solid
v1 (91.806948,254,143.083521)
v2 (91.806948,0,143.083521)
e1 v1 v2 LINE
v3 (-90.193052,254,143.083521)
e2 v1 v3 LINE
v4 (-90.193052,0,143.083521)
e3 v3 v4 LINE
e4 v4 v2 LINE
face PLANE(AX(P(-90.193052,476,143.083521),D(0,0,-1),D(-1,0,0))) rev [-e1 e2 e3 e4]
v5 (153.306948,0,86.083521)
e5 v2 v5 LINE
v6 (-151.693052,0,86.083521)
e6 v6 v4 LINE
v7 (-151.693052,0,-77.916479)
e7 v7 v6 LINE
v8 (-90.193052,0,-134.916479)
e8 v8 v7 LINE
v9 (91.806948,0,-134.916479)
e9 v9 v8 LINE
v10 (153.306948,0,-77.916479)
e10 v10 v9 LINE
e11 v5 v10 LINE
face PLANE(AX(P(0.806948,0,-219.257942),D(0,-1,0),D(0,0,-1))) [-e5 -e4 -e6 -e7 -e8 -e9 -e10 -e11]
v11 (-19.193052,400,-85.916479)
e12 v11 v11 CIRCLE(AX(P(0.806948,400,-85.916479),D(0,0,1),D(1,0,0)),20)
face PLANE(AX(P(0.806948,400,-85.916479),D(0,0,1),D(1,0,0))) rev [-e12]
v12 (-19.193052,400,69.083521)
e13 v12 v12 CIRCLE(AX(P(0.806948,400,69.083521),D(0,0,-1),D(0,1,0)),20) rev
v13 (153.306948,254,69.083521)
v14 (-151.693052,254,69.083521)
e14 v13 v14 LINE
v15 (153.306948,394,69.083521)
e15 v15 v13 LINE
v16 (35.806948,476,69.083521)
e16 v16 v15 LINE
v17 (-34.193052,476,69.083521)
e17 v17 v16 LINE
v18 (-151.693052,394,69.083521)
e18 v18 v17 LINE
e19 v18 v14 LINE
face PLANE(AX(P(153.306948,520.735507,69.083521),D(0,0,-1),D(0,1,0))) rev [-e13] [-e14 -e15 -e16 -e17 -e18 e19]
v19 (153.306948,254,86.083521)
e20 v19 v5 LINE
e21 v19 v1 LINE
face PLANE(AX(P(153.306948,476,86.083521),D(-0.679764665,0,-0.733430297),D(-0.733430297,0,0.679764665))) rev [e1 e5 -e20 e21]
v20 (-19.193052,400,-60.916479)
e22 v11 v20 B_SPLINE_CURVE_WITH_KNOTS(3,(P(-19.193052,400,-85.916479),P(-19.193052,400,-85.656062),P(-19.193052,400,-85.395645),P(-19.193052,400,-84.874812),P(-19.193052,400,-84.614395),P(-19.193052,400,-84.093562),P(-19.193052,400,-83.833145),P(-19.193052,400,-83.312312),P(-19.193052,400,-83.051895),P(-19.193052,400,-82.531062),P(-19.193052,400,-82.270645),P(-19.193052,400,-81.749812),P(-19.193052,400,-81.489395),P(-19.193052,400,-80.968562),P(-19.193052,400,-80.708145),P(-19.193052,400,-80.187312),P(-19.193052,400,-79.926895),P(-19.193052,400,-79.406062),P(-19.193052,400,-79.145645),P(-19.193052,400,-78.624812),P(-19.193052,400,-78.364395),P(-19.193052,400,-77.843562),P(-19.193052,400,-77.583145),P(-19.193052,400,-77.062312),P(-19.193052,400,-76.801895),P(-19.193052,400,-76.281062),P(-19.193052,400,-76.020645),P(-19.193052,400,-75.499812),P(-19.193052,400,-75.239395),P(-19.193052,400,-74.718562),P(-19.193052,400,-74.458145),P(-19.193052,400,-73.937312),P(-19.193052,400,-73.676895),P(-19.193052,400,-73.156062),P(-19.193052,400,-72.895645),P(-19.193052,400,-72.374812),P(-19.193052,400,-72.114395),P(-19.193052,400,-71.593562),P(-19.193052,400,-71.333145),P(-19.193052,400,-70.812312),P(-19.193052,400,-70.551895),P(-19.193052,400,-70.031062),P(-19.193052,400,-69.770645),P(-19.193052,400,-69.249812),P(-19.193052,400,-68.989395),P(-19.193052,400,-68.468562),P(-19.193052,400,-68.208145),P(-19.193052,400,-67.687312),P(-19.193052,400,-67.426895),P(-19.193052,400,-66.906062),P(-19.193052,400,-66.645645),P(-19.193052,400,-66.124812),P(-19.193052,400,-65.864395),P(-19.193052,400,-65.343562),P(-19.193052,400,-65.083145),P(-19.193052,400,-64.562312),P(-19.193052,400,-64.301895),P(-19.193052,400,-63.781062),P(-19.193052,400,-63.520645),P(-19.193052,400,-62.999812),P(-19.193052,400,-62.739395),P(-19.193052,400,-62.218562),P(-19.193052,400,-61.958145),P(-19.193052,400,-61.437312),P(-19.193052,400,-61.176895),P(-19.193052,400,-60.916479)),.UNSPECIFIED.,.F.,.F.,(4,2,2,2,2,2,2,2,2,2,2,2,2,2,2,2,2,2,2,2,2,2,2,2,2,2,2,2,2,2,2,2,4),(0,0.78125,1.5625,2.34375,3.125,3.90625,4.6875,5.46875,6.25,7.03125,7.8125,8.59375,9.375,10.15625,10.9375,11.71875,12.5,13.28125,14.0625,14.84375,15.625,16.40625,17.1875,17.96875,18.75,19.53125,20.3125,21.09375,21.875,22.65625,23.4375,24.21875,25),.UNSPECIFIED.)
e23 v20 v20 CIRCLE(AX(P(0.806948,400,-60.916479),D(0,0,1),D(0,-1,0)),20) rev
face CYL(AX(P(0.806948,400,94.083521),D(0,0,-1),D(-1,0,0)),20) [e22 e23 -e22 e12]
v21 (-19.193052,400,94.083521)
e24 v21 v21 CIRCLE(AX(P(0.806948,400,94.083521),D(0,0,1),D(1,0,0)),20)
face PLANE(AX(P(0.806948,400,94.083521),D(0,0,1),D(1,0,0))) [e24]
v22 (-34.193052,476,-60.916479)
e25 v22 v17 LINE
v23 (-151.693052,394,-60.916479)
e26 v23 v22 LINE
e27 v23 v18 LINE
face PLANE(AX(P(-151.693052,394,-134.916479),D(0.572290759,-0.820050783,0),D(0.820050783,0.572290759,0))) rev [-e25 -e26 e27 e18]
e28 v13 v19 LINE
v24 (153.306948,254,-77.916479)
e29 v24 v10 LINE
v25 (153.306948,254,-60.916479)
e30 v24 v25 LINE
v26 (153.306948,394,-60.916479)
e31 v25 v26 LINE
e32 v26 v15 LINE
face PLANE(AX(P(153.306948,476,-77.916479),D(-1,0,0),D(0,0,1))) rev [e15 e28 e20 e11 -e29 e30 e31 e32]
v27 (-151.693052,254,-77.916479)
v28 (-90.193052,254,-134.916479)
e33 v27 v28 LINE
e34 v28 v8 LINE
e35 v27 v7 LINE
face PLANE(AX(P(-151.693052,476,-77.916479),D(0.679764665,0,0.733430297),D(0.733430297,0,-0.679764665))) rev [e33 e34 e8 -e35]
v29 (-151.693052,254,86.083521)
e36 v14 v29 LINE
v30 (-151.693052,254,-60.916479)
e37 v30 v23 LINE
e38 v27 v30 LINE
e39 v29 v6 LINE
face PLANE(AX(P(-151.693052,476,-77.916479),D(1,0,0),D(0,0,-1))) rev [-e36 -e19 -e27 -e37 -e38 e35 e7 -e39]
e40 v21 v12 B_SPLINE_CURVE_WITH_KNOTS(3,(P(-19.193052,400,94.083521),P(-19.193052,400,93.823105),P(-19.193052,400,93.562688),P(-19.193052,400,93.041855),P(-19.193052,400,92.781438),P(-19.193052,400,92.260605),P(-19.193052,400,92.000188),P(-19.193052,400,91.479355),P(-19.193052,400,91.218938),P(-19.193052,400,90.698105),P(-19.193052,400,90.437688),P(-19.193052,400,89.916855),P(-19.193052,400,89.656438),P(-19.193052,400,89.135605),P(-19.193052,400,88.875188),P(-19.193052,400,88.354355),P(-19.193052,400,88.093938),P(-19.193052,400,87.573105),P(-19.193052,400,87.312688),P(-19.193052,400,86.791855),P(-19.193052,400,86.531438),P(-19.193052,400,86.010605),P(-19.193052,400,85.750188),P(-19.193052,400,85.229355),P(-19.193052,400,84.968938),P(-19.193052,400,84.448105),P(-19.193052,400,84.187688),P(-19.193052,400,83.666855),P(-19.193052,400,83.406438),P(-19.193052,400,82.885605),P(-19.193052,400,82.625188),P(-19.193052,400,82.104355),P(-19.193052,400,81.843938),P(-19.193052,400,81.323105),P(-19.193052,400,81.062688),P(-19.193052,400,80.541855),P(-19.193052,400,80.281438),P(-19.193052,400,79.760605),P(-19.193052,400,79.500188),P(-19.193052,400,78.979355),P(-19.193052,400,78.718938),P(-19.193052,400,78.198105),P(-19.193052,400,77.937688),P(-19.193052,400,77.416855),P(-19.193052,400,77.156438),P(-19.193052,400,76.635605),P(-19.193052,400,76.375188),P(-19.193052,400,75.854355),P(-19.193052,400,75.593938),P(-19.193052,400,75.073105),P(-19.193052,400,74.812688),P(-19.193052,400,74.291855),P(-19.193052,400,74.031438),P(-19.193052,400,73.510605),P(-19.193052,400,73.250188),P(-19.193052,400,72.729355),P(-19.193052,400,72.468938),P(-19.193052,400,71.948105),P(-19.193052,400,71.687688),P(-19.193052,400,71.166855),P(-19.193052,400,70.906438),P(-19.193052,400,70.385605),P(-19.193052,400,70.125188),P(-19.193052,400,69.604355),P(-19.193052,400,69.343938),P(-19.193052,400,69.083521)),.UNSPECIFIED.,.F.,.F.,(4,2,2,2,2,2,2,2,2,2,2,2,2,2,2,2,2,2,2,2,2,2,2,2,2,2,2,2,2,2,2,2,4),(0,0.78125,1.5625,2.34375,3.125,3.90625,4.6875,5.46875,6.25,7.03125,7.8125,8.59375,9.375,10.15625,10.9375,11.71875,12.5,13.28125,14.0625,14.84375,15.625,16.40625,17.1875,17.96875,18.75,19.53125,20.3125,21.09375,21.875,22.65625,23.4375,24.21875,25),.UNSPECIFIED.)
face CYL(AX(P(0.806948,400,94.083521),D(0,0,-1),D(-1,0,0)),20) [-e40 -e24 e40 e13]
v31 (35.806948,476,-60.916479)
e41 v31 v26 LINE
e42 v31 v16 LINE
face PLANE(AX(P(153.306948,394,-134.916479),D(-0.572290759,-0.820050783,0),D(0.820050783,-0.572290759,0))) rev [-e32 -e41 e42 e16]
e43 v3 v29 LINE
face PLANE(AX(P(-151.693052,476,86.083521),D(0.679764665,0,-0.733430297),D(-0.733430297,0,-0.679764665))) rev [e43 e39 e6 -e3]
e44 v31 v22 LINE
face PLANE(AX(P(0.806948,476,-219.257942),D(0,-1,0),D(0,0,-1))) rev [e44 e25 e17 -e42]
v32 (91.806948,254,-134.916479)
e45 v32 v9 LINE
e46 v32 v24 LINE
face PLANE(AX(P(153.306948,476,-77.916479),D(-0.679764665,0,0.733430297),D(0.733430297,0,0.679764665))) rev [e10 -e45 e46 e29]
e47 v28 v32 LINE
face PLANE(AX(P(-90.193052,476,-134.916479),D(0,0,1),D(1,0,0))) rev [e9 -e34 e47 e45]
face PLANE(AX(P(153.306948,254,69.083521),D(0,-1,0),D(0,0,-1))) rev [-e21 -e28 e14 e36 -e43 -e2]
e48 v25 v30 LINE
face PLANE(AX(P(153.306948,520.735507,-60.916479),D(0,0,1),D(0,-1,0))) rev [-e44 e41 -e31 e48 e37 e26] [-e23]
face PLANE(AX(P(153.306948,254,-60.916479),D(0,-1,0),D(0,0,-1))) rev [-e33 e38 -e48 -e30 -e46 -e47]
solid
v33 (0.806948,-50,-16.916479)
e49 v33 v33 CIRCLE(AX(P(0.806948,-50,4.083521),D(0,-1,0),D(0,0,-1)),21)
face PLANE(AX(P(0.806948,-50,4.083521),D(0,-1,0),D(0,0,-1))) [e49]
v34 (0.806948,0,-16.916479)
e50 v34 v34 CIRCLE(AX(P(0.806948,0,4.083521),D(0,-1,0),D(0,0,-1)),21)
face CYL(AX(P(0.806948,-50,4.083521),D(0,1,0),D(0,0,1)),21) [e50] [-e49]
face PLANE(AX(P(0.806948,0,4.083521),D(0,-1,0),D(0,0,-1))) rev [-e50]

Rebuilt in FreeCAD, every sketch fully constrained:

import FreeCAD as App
import Part
import Sketcher
Q = App.Units.Quantity

doc = App.newDocument("Part")
body = doc.addObject("PartDesign::Body", "Body")

# Sketch on XZ plane
sketch1 = body.newObject("Sketcher::SketchObject", "Sketch")
sketch1.AttachmentSupport = (doc.getObject("XZ_Plane"), [""])
sketch1.MapMode = "FlatFace"
sketch1.addGeometry(Part.LineSegment(App.Vector(-151.693052, -77.916479, 0), App.Vector(-151.693052, 86.083521, 0)), False)
sketch1.addGeometry(Part.LineSegment(App.Vector(-151.693052, 86.083521, 0), App.Vector(-90.193052, 143.083521, 0)), False)
sketch1.addGeometry(Part.LineSegment(App.Vector(-90.193052, 143.083521, 0), App.Vector(91.806948, 143.083521, 0)), False)
sketch1.addGeometry(Part.LineSegment(App.Vector(91.806948, 143.083521, 0), App.Vector(153.306948, 86.083521, 0)), False)
sketch1.addGeometry(Part.LineSegment(App.Vector(153.306948, 86.083521, 0), App.Vector(153.306948, -77.916479, 0)), False)
sketch1.addGeometry(Part.LineSegment(App.Vector(153.306948, -77.916479, 0), App.Vector(91.806948, -134.916479, 0)), False)
sketch1.addGeometry(Part.LineSegment(App.Vector(91.806948, -134.916479, 0), App.Vector(-90.193052, -134.916479, 0)), False)
sketch1.addGeometry(Part.LineSegment(App.Vector(-90.193052, -134.916479, 0), App.Vector(-151.693052, -77.916479, 0)), False)
sketch1.addConstraint(Sketcher.Constraint("Coincident", 0, 2, 1, 1))
sketch1.addConstraint(Sketcher.Constraint("Coincident", 1, 2, 2, 1))
sketch1.addConstraint(Sketcher.Constraint("Coincident", 2, 2, 3, 1))
sketch1.addConstraint(Sketcher.Constraint("Coincident", 3, 2, 4, 1))
sketch1.addConstraint(Sketcher.Constraint("Coincident", 4, 2, 5, 1))
sketch1.addConstraint(Sketcher.Constraint("Coincident", 5, 2, 6, 1))
sketch1.addConstraint(Sketcher.Constraint("Coincident", 6, 2, 7, 1))
sketch1.addConstraint(Sketcher.Constraint("Coincident", 7, 2, 0, 1))
sketch1.addConstraint(Sketcher.Constraint("Vertical", 0))
sketch1.addConstraint(Sketcher.Constraint("Horizontal", 2))
sketch1.addConstraint(Sketcher.Constraint("Vertical", 4))
sketch1.addConstraint(Sketcher.Constraint("Horizontal", 6))
sketch1.addConstraint(Sketcher.Constraint("Parallel", 1, 5))
sketch1.addConstraint(Sketcher.Constraint("Parallel", 3, 7))
sketch1.addConstraint(Sketcher.Constraint("Horizontal", 0, 2, 3, 2))
sketch1.addConstraint(Sketcher.Constraint("Horizontal", 4, 2, 7, 2))
sketch1.addConstraint(Sketcher.Constraint("Vertical", 2, 2, 5, 2))
sketch1.addConstraint(Sketcher.Constraint("Vertical", 1, 2, 6, 2))
sketch1.addConstraint(Sketcher.Constraint("DistanceX", 2, 1, 2, 2, Q("182 mm")))
sketch1.addConstraint(Sketcher.Constraint("DistanceY", 0, 1, 0, 2, Q("164 mm")))
sketch1.addConstraint(Sketcher.Constraint("DistanceY", 0, 2, 1, 2, Q("57 mm")))
sketch1.addConstraint(Sketcher.Constraint("DistanceX", 0, 2, 3, 2, Q("305 mm")))
sketch1.addConstraint(Sketcher.Constraint("DistanceX", 0, 2, -1, 1, Q("151.693052 mm")))
sketch1.addConstraint(Sketcher.Constraint("DistanceY", -1, 1, 0, 2, Q("86.083521 mm")))
pad1 = body.newObject("PartDesign::Pad", "Pad")
pad1.Profile = sketch1
pad1.Length = 476
pad1.Reversed = True

# Sketch on YZ plane
sketch2 = body.newObject("Sketcher::SketchObject", "Sketch001")
sketch2.AttachmentSupport = (doc.getObject("YZ_Plane"), [""])
sketch2.MapMode = "FlatFace"
sketch2.AttachmentOffset = App.Placement(App.Vector(0, 0, -151.693052), App.Rotation())
sketch2.addGeometry(Part.LineSegment(App.Vector(520.735507, 69.083521, 0), App.Vector(254, 69.083521, 0)), False)
sketch2.addGeometry(Part.LineSegment(App.Vector(254, 69.083521, 0), App.Vector(254, 248.653683, 0)), False)
sketch2.addGeometry(Part.LineSegment(App.Vector(254, 248.653683, 0), App.Vector(520.735507, 248.653683, 0)), False)
sketch2.addGeometry(Part.LineSegment(App.Vector(520.735507, 248.653683, 0), App.Vector(520.735507, 69.083521, 0)), False)
sketch2.addGeometry(Part.LineSegment(App.Vector(520.735507, -240.486641, 0), App.Vector(254, -240.486641, 0)), False)
sketch2.addGeometry(Part.LineSegment(App.Vector(254, -240.486641, 0), App.Vector(254, -60.916479, 0)), False)
sketch2.addGeometry(Part.LineSegment(App.Vector(254, -60.916479, 0), App.Vector(520.735507, -60.916479, 0)), False)
sketch2.addGeometry(Part.LineSegment(App.Vector(520.735507, -60.916479, 0), App.Vector(520.735507, -240.486641, 0)), False)
sketch2.addConstraint(Sketcher.Constraint("Coincident", 0, 2, 1, 1))
sketch2.addConstraint(Sketcher.Constraint("Coincident", 1, 2, 2, 1))
sketch2.addConstraint(Sketcher.Constraint("Coincident", 2, 2, 3, 1))
sketch2.addConstraint(Sketcher.Constraint("Coincident", 3, 2, 0, 1))
sketch2.addConstraint(Sketcher.Constraint("Coincident", 4, 2, 5, 1))
sketch2.addConstraint(Sketcher.Constraint("Coincident", 5, 2, 6, 1))
sketch2.addConstraint(Sketcher.Constraint("Coincident", 6, 2, 7, 1))
sketch2.addConstraint(Sketcher.Constraint("Coincident", 7, 2, 4, 1))
sketch2.addConstraint(Sketcher.Constraint("Horizontal", 0))
sketch2.addConstraint(Sketcher.Constraint("Vertical", 1))
sketch2.addConstraint(Sketcher.Constraint("Horizontal", 2))
sketch2.addConstraint(Sketcher.Constraint("Vertical", 3))
sketch2.addConstraint(Sketcher.Constraint("Horizontal", 4))
sketch2.addConstraint(Sketcher.Constraint("Vertical", 5))
sketch2.addConstraint(Sketcher.Constraint("Horizontal", 6))
sketch2.addConstraint(Sketcher.Constraint("Vertical", 7))
sketch2.addConstraint(Sketcher.Constraint("Vertical", 1, 2, 4, 2))
sketch2.addConstraint(Sketcher.Constraint("Vertical", 3, 2, 6, 2))
sketch2.addConstraint(Sketcher.Constraint("Equal", 3, 5))
sketch2.addConstraint(Sketcher.Constraint("DistanceX", -1, 1, 0, 2, Q("254 mm")))
sketch2.addConstraint(Sketcher.Constraint("DistanceY", 5, 2, 0, 2, Q("130 mm")))
sketch2.addConstraint(Sketcher.Constraint("DistanceY", 1, 1, 1, 2, Q("179.570162 mm")))
sketch2.addConstraint(Sketcher.Constraint("DistanceX", 0, 2, 0, 1, Q("266.735507 mm")))
sketch2.addConstraint(Sketcher.Constraint("DistanceY", -1, 1, 0, 2, Q("69.083521 mm")))
pocket1 = body.newObject("PartDesign::Pocket", "Pocket")
pocket1.Profile = sketch2
pocket1.Type = "ThroughAll"
pocket1.Reversed = True

# Sketch on XY plane
sketch3 = body.newObject("Sketcher::SketchObject", "Sketch002")
sketch3.AttachmentSupport = (doc.getObject("XY_Plane"), [""])
sketch3.MapMode = "FlatFace"
sketch3.AttachmentOffset = App.Placement(App.Vector(0, 0, 69.083521), App.Rotation())
sketch3.addGeometry(Part.LineSegment(App.Vector(-151.693052, 394, 0), App.Vector(-34.193052, 476, 0)), False)
sketch3.addGeometry(Part.LineSegment(App.Vector(-34.193052, 476, 0), App.Vector(-151.693052, 476, 0)), False)
sketch3.addGeometry(Part.LineSegment(App.Vector(-151.693052, 476, 0), App.Vector(-151.693052, 394, 0)), False)
sketch3.addGeometry(Part.LineSegment(App.Vector(153.306948, 476, 0), App.Vector(35.806948, 476, 0)), False)
sketch3.addGeometry(Part.LineSegment(App.Vector(35.806948, 476, 0), App.Vector(153.306948, 394, 0)), False)
sketch3.addGeometry(Part.LineSegment(App.Vector(153.306948, 394, 0), App.Vector(153.306948, 476, 0)), False)
sketch3.addConstraint(Sketcher.Constraint("Coincident", 0, 2, 1, 1))
sketch3.addConstraint(Sketcher.Constraint("Coincident", 1, 2, 2, 1))
sketch3.addConstraint(Sketcher.Constraint("Coincident", 2, 2, 0, 1))
sketch3.addConstraint(Sketcher.Constraint("Coincident", 3, 2, 4, 1))
sketch3.addConstraint(Sketcher.Constraint("Coincident", 4, 2, 5, 1))
sketch3.addConstraint(Sketcher.Constraint("Coincident", 5, 2, 3, 1))
sketch3.addConstraint(Sketcher.Constraint("Horizontal", 1))
sketch3.addConstraint(Sketcher.Constraint("Vertical", 2))
sketch3.addConstraint(Sketcher.Constraint("Horizontal", 3))
sketch3.addConstraint(Sketcher.Constraint("Vertical", 5))
sketch3.addConstraint(Sketcher.Constraint("Horizontal", 1, 2, 3, 2))
sketch3.addConstraint(Sketcher.Constraint("Horizontal", 2, 2, 4, 2))
sketch3.addConstraint(Sketcher.Constraint("Equal", 1, 3))
sketch3.addConstraint(Sketcher.Constraint("DistanceY", 2, 2, 2, 1, Q("82 mm")))
sketch3.addConstraint(Sketcher.Constraint("DistanceX", 1, 2, 1, 1, Q("117.5 mm")))
sketch3.addConstraint(Sketcher.Constraint("DistanceY", -1, 1, 0, 2, Q("476 mm")))
sketch3.addConstraint(Sketcher.Constraint("DistanceX", 0, 2, 3, 2, Q("70 mm")))
sketch3.addConstraint(Sketcher.Constraint("DistanceX", 0, 2, -1, 1, Q("34.193052 mm")))
pocket2 = body.newObject("PartDesign::Pocket", "Pocket001")
pocket2.Profile = sketch3
pocket2.Type = "ThroughAll"

# Sketch on XY plane
sketch4 = body.newObject("Sketcher::SketchObject", "Sketch003")
sketch4.AttachmentSupport = (doc.getObject("XY_Plane"), [""])
sketch4.MapMode = "FlatFace"
sketch4.AttachmentOffset = App.Placement(App.Vector(0, 0, 4.083521), App.Rotation())
sketch4.addGeometry(Part.Circle(App.Vector(0.806948, 400, 0), App.Vector(0, 0, 1), 20), False)
sketch4.addConstraint(Sketcher.Constraint("Diameter", 0, Q("40 mm")))
sketch4.addConstraint(Sketcher.Constraint("DistanceY", -1, 1, 0, 3, Q("400 mm")))
sketch4.addConstraint(Sketcher.Constraint("DistanceX", -1, 1, 0, 3, Q("0.806948 mm")))
pad2 = body.newObject("PartDesign::Pad", "Pad001")
pad2.Profile = sketch4
pad2.Length = 180
pad2.Midplane = True
body2 = doc.addObject("PartDesign::Body", "Body001")

# Sketch on XZ plane
sketch5 = body2.newObject("Sketcher::SketchObject", "Sketch004")
sketch5.AttachmentSupport = (doc.getObject("XZ_Plane001"), [""])
sketch5.MapMode = "FlatFace"
sketch5.addGeometry(Part.Circle(App.Vector(0.806948, 4.083521, 0), App.Vector(0, 0, 1), 21), False)
sketch5.addConstraint(Sketcher.Constraint("Diameter", 0, Q("42 mm")))
sketch5.addConstraint(Sketcher.Constraint("DistanceX", -1, 1, 0, 3, Q("0.806948 mm")))
sketch5.addConstraint(Sketcher.Constraint("DistanceY", -1, 1, 0, 3, Q("4.083521 mm")))
pad3 = body2.newObject("PartDesign::Pad", "Pad002")
pad3.Profile = sketch5
pad3.Length = 50

doc.recompute()
